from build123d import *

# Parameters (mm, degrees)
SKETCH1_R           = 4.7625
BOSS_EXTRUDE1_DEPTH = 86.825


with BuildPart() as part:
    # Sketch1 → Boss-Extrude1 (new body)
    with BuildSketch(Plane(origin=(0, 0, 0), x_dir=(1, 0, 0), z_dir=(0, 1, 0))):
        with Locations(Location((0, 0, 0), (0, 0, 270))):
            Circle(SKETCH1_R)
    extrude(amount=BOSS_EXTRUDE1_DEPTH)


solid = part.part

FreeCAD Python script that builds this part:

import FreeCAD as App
import Part
import Sketcher

V = App.Vector
Q = App.Units.Quantity

doc = App.newDocument("Part")
params = doc.addObject("Spreadsheet::Sheet", "Params")
for row, (alias, value) in enumerate([
    ("sketch1_diameter", "0.375 in"),
    ("pad1_length", "86.825 mm"),
], start=1):
    params.set(f"A{row}", alias)
    params.set(f"B{row}", "=" + value)
    params.setAlias(f"B{row}", alias)

body = doc.addObject("PartDesign::Body", "Body")

sketch1 = body.newObject("Sketcher::SketchObject", "Sketch")
sketch1.AttachmentSupport = (doc.getObject("XZ_Plane"), [""])
sketch1.MapMode = "FlatFace"
sketch1.addGeometry(Part.Circle(V(0, 0, 0), V(0, 0, 1), 4.8), False)
sketch1.addConstraint([
    Sketcher.Constraint("Coincident", 0, 3, -1, 1),
    Sketcher.Constraint("Diameter", 0, Q("0.375 in")),
])
sketch1.setExpression("Constraints[1]", "Params.sketch1_diameter")
pad1 = body.newObject("PartDesign::Pad", "Pad")
pad1.Profile = sketch1
pad1.setExpression("Length", "Params.pad1_length")
pad1.Reversed = True

doc.recompute()
